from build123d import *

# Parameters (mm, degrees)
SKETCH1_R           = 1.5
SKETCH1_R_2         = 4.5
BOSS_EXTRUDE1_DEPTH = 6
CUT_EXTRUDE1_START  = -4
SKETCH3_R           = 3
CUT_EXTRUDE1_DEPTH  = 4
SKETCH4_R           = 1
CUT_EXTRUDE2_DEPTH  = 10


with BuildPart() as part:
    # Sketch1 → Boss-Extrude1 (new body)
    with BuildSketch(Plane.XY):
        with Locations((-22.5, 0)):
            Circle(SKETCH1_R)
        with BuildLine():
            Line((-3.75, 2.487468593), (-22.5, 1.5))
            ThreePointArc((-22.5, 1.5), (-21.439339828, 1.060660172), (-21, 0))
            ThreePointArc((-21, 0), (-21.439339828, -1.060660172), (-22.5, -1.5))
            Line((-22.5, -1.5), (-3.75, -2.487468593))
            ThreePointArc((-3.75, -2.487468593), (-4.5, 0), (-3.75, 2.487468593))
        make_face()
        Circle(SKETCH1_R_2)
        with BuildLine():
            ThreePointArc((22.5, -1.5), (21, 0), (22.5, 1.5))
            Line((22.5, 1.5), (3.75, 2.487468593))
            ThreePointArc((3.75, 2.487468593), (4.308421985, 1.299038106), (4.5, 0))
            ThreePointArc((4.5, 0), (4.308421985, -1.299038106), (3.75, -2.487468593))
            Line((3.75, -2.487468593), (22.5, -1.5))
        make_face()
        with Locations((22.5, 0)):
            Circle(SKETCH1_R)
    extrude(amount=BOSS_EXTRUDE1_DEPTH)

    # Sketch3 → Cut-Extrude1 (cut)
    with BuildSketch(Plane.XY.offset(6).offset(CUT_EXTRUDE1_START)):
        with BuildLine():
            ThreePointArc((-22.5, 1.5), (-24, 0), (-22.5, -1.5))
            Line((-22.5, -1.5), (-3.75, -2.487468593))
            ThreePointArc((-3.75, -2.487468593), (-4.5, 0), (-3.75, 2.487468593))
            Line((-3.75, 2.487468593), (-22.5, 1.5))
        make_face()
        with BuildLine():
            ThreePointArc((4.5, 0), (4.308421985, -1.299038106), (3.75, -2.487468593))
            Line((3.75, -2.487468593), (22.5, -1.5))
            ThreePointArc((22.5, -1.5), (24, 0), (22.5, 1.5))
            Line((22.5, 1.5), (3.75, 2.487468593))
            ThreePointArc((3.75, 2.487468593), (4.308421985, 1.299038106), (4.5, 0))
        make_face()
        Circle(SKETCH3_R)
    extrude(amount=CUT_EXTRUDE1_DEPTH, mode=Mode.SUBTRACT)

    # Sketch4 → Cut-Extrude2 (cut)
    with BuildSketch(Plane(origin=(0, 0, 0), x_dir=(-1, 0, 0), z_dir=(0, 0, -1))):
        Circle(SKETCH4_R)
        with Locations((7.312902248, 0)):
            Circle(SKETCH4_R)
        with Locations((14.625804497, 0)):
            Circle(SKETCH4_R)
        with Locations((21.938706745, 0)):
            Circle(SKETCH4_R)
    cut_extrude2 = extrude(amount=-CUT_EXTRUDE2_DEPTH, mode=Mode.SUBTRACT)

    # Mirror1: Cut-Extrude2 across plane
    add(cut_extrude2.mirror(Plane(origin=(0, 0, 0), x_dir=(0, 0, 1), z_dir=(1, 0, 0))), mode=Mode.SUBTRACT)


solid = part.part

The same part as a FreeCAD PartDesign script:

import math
import FreeCAD as App
import Part
import Sketcher
Q = App.Units.Quantity

doc = App.newDocument("Part")
body = doc.addObject("PartDesign::Body", "Body")

# Sketch on XY plane
sketch1 = doc.addObject("Sketcher::SketchObject", "Sketch")
body.addObject(sketch1)
sketch1.AttachmentSupport = (doc.XY_Plane, [""])
sketch1.MapMode = "FlatFace"
sketch1.addGeometry([
    Part.ArcOfCircle(Part.Circle(App.Vector(-22.5, 0, 0), App.Vector(0, 0, 1), 1.5), math.radians(90), math.radians(270)),  # 0
    Part.LineSegment(App.Vector(-22.5, -1.5, 0), App.Vector(-3.75, -2.487469, 0)),  # 1
    Part.ArcOfCircle(Part.Circle(App.Vector(0, 0, 0), App.Vector(0, 0, 1), 4.5), math.radians(-146.44269), math.radians(-33.55731)),  # 2
    Part.LineSegment(App.Vector(3.75, -2.487469, 0), App.Vector(22.5, -1.5, 0)),  # 3
    Part.ArcOfCircle(Part.Circle(App.Vector(22.5, 0, 0), App.Vector(0, 0, 1), 1.5), math.radians(-90), math.radians(90)),  # 4
    Part.LineSegment(App.Vector(22.5, 1.5, 0), App.Vector(3.75, 2.487469, 0)),  # 5
    Part.ArcOfCircle(Part.Circle(App.Vector(0, 0, 0), App.Vector(0, 0, 1), 4.5), math.radians(33.55731), math.radians(146.44269)),  # 6
    Part.LineSegment(App.Vector(-3.75, 2.487469, 0), App.Vector(-22.5, 1.5, 0)),  # 7
], False)
sketch1.addConstraint([
    Sketcher.Constraint("Coincident", 0, 2, 1, 1),
    Sketcher.Constraint("Coincident", 1, 2, 2, 1),
    Sketcher.Constraint("Coincident", 2, 2, 3, 1),
    Sketcher.Constraint("Coincident", 3, 2, 4, 1),
    Sketcher.Constraint("Coincident", 4, 2, 5, 1),
    Sketcher.Constraint("Coincident", 5, 2, 6, 1),
    Sketcher.Constraint("Coincident", 6, 2, 7, 1),
    Sketcher.Constraint("Coincident", 7, 2, 0, 1),
    Sketcher.Constraint("Coincident", 2, 3, -1, 1),
    Sketcher.Constraint("Coincident", 6, 3, -1, 1),
    Sketcher.Constraint("Equal", 0, 4),
    Sketcher.Constraint("Equal", 2, 6),
    Sketcher.Constraint("Symmetric", 0, 3, 4, 3, -1, 1),
    Sketcher.Constraint("Symmetric", 0, 2, 3, 2, -2),
    Sketcher.Constraint("Parallel", 1, 5),
    Sketcher.Constraint("Parallel", 3, 7),
    Sketcher.Constraint("Horizontal", 1, 2, 2, 2),
    Sketcher.Constraint("Horizontal", 5, 2, 6, 2),
    Sketcher.Constraint("Vertical", 4, 3, 3, 2),
    Sketcher.Constraint("Vertical", 3, 2, 4, 2),
    Sketcher.Constraint("Radius", 0, Q("1.5 mm")),
    Sketcher.Constraint("Radius", 2, Q("4.5 mm")),
    Sketcher.Constraint("DistanceX", 0, 3, 4, 3, Q("45 mm")),
    Sketcher.Constraint("DistanceX", 1, 2, 2, 2, Q("7.5 mm")),
])
pad1 = doc.addObject("PartDesign::Pad", "Pad")
body.addObject(pad1)
pad1.Profile = sketch1
pad1.Length = 6

# Sketch on XY plane
sketch2 = doc.addObject("Sketcher::SketchObject", "Sketch001")
body.addObject(sketch2)
sketch2.AttachmentSupport = (doc.XY_Plane, [""])
sketch2.MapMode = "FlatFace"
sketch2.AttachmentOffset = App.Placement(App.Vector(0, 0, 2), App.Rotation())
sketch2.addGeometry([
    Part.ArcOfCircle(Part.Circle(App.Vector(-22.5, 0, 0), App.Vector(0, 0, 1), 1.5), math.radians(90), math.radians(270)),  # 0
    Part.LineSegment(App.Vector(-22.5, -1.5, 0), App.Vector(-3.75, -2.487469, 0)),  # 1
    Part.ArcOfCircle(Part.Circle(App.Vector(0, 0, 0), App.Vector(0, 0, 1), 4.5), math.radians(146.44269), math.radians(213.55731)),  # 2
    Part.LineSegment(App.Vector(-3.75, 2.487469, 0), App.Vector(-22.5, 1.5, 0)),  # 3
    Part.ArcOfCircle(Part.Circle(App.Vector(0, 0, 0), App.Vector(0, 0, 1), 4.5), math.radians(-33.55731), math.radians(0)),  # 4
    Part.LineSegment(App.Vector(3.75, -2.487469, 0), App.Vector(22.5, -1.5, 0)),  # 5
    Part.ArcOfCircle(Part.Circle(App.Vector(22.5, 0, 0), App.Vector(0, 0, 1), 1.5), math.radians(-90), math.radians(90)),  # 6
    Part.LineSegment(App.Vector(22.5, 1.5, 0), App.Vector(3.75, 2.487469, 0)),  # 7
    Part.ArcOfCircle(Part.Circle(App.Vector(0, 0, 0), App.Vector(0, 0, 1), 4.5), math.radians(0), math.radians(33.55731)),  # 8
    Part.Circle(App.Vector(0, 0, 0), App.Vector(0, 0, 1), 3),  # 9
], False)
sketch2.addConstraint([
    Sketcher.Constraint("Coincident", 0, 2, 1, 1),
    Sketcher.Constraint("Coincident", 1, 2, 2, 2),
    Sketcher.Constraint("Coincident", 2, 1, 3, 1),
    Sketcher.Constraint("Coincident", 3, 2, 0, 1),
    Sketcher.Constraint("Coincident", 4, 1, 5, 1),
    Sketcher.Constraint("Coincident", 5, 2, 6, 1),
    Sketcher.Constraint("Coincident", 6, 2, 7, 1),
    Sketcher.Constraint("Coincident", 7, 2, 8, 2),
    Sketcher.Constraint("Tangent", 8, 1, 4, 2),
    Sketcher.Constraint("Coincident", 2, 3, -1, 1),
    Sketcher.Constraint("Coincident", 4, 3, -1, 1),
    Sketcher.Constraint("Coincident", 9, 3, -1, 1),
    Sketcher.Constraint("Equal", 2, 4),
    Sketcher.Constraint("Equal", 0, 6),
    Sketcher.Constraint("Equal", 4, 8),
    Sketcher.Constraint("Symmetric", 0, 3, 6, 3, -1, 1),
    Sketcher.Constraint("Symmetric", 0, 2, 5, 2, -2),
    Sketcher.Constraint("PointOnObject", 8, 1, -1),
    Sketcher.Constraint("Parallel", 3, 5),
    Sketcher.Constraint("Parallel", 1, 7),
    Sketcher.Constraint("Horizontal", 1, 2, 4, 1),
    Sketcher.Constraint("Horizontal", 2, 1, 7, 2),
    Sketcher.Constraint("Vertical", 1, 2, 2, 1),
    Sketcher.Constraint("Vertical", 6, 3, 5, 2),
    Sketcher.Constraint("Diameter", 9, Q("6 mm")),
    Sketcher.Constraint("Radius", 0, Q("1.5 mm")),
    Sketcher.Constraint("Radius", 2, Q("4.5 mm")),
    Sketcher.Constraint("DistanceX", 0, 3, 6, 3, Q("45 mm")),
    Sketcher.Constraint("DistanceX", 1, 2, 4, 1, Q("7.5 mm")),
])
pocket1 = doc.addObject("PartDesign::Pocket", "Pocket")
body.addObject(pocket1)
pocket1.Profile = sketch2
pocket1.Length = 4
pocket1.Reversed = True

# Sketch on XY plane
sketch3 = doc.addObject("Sketcher::SketchObject", "Sketch002")
body.addObject(sketch3)
sketch3.AttachmentSupport = (doc.XY_Plane, [""])
sketch3.MapMode = "FlatFace"
sketch3.addGeometry([
    Part.Circle(App.Vector(0, 0, 0), App.Vector(0, 0, 1), 1),
    Part.Circle(App.Vector(-7.312902, 0, 0), App.Vector(0, 0, 1), 1),
    Part.Circle(App.Vector(-14.625804, 0, 0), App.Vector(0, 0, 1), 1),
    Part.Circle(App.Vector(-21.938707, 0, 0), App.Vector(0, 0, 1), 1),
], False)
sketch3.addConstraint([
    Sketcher.Constraint("Coincident", 0, 3, -1, 1),
    Sketcher.Constraint("Equal", 0, 1),
    Sketcher.Constraint("Equal", 1, 2),
    Sketcher.Constraint("Equal", 2, 3),
    Sketcher.Constraint("PointOnObject", 1, 3, -1),
    Sketcher.Constraint("PointOnObject", 2, 3, -1),
    Sketcher.Constraint("PointOnObject", 3, 3, -1),
    Sketcher.Constraint("Diameter", 0, Q("2 mm")),
    Sketcher.Constraint("DistanceX", 1, 3, -1, 1, Q("7.312902 mm")),
    Sketcher.Constraint("DistanceX", 2, 3, -1, 1, Q("14.625804 mm")),
    Sketcher.Constraint("DistanceX", 3, 3, -1, 1, Q("21.938707 mm")),
])
pocket2 = doc.addObject("PartDesign::Pocket", "Pocket001")
body.addObject(pocket2)
pocket2.Profile = sketch3
pocket2.Length = 10
pocket2.Reversed = True
doc.recompute()

mirrored = doc.addObject("PartDesign::Mirrored", "Mirrored")
body.addObject(mirrored)
mirrored.Originals = [pocket2]
mirrored.MirrorPlane = (doc.YZ_Plane, [""])
body.Tip = mirrored

doc.recompute()
